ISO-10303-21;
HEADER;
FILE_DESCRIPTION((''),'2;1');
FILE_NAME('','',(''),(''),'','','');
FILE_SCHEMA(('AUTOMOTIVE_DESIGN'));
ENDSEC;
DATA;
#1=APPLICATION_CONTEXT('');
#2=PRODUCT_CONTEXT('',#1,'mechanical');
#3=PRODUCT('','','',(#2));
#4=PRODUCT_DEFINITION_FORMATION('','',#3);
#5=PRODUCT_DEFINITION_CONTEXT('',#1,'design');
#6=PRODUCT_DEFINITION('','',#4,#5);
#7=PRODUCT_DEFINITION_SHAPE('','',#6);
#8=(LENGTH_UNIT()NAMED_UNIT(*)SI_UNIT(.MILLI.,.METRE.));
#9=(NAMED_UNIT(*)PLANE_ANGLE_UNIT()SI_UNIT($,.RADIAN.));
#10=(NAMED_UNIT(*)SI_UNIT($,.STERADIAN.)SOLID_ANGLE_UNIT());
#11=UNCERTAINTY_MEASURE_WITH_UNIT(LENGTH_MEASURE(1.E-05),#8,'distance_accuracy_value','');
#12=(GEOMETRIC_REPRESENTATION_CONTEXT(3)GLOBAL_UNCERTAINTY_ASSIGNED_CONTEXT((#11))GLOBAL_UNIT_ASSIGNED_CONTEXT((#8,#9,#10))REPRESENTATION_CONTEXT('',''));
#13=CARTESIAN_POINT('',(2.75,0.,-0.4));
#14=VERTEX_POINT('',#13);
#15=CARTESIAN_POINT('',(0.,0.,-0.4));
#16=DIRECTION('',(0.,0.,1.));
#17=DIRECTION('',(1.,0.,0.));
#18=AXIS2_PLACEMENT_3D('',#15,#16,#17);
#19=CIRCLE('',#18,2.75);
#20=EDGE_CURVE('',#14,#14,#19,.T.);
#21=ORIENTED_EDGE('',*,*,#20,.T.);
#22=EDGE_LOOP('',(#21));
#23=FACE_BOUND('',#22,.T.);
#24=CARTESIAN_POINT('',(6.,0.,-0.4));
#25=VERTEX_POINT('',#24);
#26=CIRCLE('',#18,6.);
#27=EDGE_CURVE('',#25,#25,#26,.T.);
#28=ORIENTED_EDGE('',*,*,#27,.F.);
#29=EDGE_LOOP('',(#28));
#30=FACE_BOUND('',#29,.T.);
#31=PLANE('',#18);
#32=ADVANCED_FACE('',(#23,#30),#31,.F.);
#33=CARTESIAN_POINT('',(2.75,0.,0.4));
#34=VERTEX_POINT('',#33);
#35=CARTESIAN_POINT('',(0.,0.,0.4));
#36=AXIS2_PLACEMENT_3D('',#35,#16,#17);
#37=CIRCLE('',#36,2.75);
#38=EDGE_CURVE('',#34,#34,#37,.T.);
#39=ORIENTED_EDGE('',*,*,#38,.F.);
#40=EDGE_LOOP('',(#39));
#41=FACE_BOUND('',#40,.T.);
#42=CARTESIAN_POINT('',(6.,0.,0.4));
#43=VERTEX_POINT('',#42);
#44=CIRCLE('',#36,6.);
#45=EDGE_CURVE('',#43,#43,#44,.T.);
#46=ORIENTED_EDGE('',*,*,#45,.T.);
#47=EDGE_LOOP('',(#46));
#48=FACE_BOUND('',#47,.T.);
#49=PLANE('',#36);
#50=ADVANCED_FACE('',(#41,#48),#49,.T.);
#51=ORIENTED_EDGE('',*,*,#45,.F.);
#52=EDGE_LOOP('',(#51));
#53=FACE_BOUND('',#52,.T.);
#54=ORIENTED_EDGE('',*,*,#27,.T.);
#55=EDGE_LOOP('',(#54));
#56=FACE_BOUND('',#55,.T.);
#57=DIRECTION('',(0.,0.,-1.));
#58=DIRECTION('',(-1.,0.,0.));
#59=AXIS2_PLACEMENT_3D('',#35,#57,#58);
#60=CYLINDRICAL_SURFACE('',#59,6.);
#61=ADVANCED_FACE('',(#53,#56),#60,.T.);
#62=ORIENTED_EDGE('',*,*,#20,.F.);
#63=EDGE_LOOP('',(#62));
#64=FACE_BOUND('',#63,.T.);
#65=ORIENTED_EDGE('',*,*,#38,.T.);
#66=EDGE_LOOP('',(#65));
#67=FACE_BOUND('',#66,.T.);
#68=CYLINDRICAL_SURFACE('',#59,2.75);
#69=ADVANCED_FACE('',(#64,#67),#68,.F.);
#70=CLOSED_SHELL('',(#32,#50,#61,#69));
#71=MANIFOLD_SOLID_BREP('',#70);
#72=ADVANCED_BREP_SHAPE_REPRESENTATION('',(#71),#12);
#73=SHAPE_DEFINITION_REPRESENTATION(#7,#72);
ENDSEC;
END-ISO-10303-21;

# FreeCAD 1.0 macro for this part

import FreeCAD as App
import Part
import Sketcher
Q = App.Units.Quantity

doc = App.newDocument("Part")
body = doc.addObject("PartDesign::Body", "Body")

sketch1 = body.newObject("Sketcher::SketchObject", "Sketch")
sketch1.AttachmentSupport = (doc.getObject("XY_Plane"), [""])
sketch1.MapMode = "FlatFace"
sketch1.addGeometry([
    Part.Circle(App.Vector(0, 0, 0), App.Vector(0, 0, 1), 6),
    Part.Circle(App.Vector(0, 0, 0), App.Vector(0, 0, 1), 2.8),
], False)
sketch1.addConstraint([
    Sketcher.Constraint("Coincident", 0, 3, -1, 1),
    Sketcher.Constraint("Coincident", 1, 3, -1, 1),
    Sketcher.Constraint("Diameter", 0, Q("12 mm")),
    Sketcher.Constraint("Diameter", 1, Q("5.5 mm")),
])
pad1 = body.newObject("PartDesign::Pad", "Pad")
pad1.Profile = sketch1
pad1.Length = 0.8
pad1.Midplane = True

doc.recompute()
